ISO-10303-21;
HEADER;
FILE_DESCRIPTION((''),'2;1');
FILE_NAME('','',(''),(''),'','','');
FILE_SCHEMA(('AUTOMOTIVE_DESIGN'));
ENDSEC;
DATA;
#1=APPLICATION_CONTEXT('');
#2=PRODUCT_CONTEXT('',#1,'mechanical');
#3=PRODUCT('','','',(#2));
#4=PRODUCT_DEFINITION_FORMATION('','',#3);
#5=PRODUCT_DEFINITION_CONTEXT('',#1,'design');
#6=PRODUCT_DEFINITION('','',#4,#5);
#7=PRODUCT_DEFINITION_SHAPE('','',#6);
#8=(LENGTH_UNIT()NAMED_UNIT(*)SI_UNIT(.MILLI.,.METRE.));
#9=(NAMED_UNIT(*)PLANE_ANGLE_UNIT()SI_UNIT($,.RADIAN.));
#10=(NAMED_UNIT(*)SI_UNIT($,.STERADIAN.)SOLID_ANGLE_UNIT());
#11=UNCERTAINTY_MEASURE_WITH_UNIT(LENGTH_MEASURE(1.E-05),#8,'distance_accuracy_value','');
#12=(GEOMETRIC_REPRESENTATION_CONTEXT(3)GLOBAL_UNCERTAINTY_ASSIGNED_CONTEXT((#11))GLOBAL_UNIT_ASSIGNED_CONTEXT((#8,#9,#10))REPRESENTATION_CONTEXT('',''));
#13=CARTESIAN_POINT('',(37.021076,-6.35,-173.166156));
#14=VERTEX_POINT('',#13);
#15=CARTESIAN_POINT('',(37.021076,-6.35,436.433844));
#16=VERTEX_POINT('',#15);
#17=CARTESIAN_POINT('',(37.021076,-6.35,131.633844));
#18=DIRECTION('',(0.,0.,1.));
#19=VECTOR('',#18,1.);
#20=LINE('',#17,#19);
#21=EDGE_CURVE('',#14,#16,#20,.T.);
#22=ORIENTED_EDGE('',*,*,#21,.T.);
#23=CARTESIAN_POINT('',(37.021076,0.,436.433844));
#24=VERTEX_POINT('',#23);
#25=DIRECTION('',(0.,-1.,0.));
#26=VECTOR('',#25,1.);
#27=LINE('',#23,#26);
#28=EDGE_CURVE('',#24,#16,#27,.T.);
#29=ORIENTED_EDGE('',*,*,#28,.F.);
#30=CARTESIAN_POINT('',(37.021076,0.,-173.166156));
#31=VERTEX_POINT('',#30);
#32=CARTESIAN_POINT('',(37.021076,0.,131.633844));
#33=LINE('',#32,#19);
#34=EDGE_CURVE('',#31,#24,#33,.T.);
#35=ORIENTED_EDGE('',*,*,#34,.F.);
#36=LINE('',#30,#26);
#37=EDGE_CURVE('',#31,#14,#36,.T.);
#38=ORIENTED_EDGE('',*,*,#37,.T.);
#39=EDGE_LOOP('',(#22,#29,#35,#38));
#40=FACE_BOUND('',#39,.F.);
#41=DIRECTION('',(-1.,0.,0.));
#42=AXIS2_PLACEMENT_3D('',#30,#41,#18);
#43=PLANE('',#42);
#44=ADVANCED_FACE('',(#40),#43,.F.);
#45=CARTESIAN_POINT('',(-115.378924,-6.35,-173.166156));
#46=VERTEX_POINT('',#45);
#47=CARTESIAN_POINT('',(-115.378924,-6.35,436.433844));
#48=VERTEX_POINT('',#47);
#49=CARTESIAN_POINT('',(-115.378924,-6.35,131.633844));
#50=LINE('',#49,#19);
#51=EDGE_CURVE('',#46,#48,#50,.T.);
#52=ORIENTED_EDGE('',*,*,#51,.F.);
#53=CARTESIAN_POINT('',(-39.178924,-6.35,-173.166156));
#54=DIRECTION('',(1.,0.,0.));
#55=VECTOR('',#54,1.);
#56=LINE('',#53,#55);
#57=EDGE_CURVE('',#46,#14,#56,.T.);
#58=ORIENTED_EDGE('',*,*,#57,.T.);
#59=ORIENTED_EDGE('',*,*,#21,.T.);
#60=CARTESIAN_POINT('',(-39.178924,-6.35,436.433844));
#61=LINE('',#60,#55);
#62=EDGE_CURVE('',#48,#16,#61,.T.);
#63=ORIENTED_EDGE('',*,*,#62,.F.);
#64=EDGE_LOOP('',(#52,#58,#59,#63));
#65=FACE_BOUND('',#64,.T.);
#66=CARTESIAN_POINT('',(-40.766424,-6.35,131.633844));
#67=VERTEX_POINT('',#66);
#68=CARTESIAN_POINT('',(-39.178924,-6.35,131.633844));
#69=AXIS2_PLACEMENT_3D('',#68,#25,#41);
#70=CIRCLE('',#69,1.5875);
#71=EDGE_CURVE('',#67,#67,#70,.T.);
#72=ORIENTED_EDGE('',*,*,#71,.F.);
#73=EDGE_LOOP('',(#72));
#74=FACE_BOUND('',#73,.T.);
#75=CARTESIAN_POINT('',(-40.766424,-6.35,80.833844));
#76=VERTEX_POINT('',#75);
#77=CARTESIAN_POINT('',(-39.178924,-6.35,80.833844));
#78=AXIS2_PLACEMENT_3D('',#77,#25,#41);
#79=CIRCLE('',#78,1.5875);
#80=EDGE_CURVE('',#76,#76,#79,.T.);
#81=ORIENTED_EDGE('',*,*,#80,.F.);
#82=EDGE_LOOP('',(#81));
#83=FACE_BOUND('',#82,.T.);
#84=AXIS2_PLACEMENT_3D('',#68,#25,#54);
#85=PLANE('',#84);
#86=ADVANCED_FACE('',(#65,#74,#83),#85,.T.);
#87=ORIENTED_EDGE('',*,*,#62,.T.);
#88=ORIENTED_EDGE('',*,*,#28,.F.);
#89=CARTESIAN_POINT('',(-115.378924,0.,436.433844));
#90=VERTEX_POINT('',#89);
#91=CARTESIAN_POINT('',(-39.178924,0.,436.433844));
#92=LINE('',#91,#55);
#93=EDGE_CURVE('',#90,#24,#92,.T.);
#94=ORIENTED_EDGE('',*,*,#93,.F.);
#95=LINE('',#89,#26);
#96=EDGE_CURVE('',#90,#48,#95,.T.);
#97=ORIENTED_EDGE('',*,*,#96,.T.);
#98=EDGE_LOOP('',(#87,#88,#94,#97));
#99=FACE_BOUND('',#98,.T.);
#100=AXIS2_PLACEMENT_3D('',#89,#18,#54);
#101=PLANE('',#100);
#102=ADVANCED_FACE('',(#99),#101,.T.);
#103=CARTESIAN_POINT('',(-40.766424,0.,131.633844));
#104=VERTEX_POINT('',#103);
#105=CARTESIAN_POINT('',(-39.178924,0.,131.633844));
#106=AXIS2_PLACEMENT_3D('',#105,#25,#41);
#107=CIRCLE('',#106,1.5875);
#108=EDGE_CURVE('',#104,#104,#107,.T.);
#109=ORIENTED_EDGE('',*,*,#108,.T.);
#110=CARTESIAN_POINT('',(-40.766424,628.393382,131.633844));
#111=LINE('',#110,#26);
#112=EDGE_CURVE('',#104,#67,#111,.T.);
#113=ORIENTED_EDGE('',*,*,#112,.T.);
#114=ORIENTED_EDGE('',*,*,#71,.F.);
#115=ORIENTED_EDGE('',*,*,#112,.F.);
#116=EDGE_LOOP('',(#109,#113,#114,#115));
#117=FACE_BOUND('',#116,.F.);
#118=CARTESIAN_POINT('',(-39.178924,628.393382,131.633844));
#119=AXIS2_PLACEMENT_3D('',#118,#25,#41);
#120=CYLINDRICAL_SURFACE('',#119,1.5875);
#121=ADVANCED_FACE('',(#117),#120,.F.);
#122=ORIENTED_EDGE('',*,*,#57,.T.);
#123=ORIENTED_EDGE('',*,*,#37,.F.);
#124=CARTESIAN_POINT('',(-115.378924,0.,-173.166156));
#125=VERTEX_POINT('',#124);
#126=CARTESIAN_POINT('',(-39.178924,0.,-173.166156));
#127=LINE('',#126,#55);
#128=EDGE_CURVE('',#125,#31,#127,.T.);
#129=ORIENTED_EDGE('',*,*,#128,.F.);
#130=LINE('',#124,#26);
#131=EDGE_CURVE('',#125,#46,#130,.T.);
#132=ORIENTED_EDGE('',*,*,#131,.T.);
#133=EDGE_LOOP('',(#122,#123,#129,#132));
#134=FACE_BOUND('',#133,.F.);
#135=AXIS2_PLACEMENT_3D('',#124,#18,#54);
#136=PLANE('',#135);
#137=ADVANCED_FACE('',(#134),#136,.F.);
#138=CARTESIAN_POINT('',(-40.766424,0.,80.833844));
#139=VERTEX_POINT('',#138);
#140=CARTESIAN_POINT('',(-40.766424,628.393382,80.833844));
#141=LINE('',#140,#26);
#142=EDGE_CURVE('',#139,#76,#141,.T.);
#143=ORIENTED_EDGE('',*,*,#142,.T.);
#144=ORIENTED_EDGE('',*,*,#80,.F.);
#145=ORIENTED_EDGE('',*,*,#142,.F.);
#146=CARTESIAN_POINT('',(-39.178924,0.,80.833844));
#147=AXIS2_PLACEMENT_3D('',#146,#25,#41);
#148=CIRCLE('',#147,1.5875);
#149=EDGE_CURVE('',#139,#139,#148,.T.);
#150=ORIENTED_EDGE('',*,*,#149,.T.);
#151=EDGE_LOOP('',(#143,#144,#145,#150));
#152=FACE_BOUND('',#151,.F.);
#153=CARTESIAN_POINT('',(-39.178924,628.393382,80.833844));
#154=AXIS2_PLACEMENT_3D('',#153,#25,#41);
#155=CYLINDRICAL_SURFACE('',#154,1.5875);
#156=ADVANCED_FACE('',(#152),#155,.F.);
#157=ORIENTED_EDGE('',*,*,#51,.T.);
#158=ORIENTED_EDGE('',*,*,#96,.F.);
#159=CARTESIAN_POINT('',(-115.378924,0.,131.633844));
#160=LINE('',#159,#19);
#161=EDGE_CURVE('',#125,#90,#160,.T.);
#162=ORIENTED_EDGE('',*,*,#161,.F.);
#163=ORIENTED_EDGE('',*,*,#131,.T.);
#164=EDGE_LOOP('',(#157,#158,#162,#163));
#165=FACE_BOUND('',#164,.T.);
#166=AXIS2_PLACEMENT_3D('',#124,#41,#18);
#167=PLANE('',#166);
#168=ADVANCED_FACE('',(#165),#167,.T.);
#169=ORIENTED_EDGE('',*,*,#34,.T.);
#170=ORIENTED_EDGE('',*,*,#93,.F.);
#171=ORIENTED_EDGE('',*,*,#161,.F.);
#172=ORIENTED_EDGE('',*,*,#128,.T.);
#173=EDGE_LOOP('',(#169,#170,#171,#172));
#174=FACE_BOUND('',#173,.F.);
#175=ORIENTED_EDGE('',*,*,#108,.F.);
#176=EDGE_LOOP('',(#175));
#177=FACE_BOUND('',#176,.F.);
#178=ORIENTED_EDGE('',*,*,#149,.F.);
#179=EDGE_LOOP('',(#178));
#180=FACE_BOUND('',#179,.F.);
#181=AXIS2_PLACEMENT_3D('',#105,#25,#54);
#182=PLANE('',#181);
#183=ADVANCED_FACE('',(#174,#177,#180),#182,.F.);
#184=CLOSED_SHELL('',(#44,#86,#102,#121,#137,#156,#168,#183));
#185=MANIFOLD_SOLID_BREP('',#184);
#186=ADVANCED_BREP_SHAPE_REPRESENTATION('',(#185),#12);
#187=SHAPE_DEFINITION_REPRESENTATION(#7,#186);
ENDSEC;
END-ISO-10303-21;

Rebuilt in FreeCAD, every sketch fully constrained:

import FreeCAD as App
import Part
import Sketcher

V = App.Vector
Q = App.Units.Quantity


def add_polygon(sketch, points):
    """Adds a closed chain of lines whose ends are joined by coincident constraints."""
    first, n = sketch.GeometryCount, len(points)
    for a, b in zip(points, points[1:] + points[:1]):
        sketch.addGeometry(Part.LineSegment(App.Vector(*a, 0), App.Vector(*b, 0)), False)
    for i in range(n):
        sketch.addConstraint(Sketcher.Constraint("Coincident", first + i, 2, first + (i + 1) % n, 1))

doc = App.newDocument("Part")
body = doc.addObject("PartDesign::Body", "Body")

sketch1 = doc.addObject("Sketcher::SketchObject", "Sketch")
body.addObject(sketch1)
sketch1.AttachmentSupport = (doc.XZ_Plane, [""])
sketch1.MapMode = "FlatFace"
add_polygon(sketch1, [(-115, 436), (-115, -173), (37, -173), (37, 436)])
sketch1.addConstraint([
    Sketcher.Constraint("Vertical", 0),
    Sketcher.Constraint("Horizontal", 1),
    Sketcher.Constraint("Vertical", 2),
    Sketcher.Constraint("Horizontal", 3),
    Sketcher.Constraint("DistanceX", 1, 1, 1, 2, Q("6 in")),
    Sketcher.Constraint("DistanceY", 0, 2, 0, 1, Q("24 in")),
    Sketcher.Constraint("DistanceX", 0, 2, -1, 1, Q("115.378924 mm")),
    Sketcher.Constraint("DistanceY", 0, 2, -1, 1, Q("173.166156 mm")),
])
pad1 = doc.addObject("PartDesign::Pad", "Pad")
body.addObject(pad1)
pad1.Profile = sketch1
pad1.Length = Q("0.25 in")

sketch2 = doc.addObject("Sketcher::SketchObject", "Sketch001")
body.addObject(sketch2)
sketch2.AttachmentSupport = (doc.XZ_Plane, [""])
sketch2.MapMode = "FlatFace"
sketch2.addGeometry([
    Part.Circle(V(-39.2, 131.6, 0), V(0, 0, 1), 1.6),
    Part.Circle(V(-39.2, 80.8, 0), V(0, 0, 1), 1.6),
], False)
sketch2.addConstraint([
    Sketcher.Constraint("Equal", 0, 1),
    Sketcher.Constraint("Vertical", 0, 3, 1, 3),
    Sketcher.Constraint("Diameter", 0, Q("0.125 in")),
    Sketcher.Constraint("DistanceY", 1, 3, 0, 3, Q("2 in")),
    Sketcher.Constraint("DistanceX", 0, 3, -1, 1, Q("39.178924 mm")),
    Sketcher.Constraint("DistanceY", -1, 1, 0, 3, Q("131.633844 mm")),
])
doc.recompute()
hole = doc.addObject("PartDesign::Hole", "Hole")
body.addObject(hole)
hole.Profile = sketch2
hole.ThreadType = "None"
hole.Diameter = Q("0.125 in")
hole.DepthType = "ThroughAll"
hole.Reversed = True

doc.recompute()
